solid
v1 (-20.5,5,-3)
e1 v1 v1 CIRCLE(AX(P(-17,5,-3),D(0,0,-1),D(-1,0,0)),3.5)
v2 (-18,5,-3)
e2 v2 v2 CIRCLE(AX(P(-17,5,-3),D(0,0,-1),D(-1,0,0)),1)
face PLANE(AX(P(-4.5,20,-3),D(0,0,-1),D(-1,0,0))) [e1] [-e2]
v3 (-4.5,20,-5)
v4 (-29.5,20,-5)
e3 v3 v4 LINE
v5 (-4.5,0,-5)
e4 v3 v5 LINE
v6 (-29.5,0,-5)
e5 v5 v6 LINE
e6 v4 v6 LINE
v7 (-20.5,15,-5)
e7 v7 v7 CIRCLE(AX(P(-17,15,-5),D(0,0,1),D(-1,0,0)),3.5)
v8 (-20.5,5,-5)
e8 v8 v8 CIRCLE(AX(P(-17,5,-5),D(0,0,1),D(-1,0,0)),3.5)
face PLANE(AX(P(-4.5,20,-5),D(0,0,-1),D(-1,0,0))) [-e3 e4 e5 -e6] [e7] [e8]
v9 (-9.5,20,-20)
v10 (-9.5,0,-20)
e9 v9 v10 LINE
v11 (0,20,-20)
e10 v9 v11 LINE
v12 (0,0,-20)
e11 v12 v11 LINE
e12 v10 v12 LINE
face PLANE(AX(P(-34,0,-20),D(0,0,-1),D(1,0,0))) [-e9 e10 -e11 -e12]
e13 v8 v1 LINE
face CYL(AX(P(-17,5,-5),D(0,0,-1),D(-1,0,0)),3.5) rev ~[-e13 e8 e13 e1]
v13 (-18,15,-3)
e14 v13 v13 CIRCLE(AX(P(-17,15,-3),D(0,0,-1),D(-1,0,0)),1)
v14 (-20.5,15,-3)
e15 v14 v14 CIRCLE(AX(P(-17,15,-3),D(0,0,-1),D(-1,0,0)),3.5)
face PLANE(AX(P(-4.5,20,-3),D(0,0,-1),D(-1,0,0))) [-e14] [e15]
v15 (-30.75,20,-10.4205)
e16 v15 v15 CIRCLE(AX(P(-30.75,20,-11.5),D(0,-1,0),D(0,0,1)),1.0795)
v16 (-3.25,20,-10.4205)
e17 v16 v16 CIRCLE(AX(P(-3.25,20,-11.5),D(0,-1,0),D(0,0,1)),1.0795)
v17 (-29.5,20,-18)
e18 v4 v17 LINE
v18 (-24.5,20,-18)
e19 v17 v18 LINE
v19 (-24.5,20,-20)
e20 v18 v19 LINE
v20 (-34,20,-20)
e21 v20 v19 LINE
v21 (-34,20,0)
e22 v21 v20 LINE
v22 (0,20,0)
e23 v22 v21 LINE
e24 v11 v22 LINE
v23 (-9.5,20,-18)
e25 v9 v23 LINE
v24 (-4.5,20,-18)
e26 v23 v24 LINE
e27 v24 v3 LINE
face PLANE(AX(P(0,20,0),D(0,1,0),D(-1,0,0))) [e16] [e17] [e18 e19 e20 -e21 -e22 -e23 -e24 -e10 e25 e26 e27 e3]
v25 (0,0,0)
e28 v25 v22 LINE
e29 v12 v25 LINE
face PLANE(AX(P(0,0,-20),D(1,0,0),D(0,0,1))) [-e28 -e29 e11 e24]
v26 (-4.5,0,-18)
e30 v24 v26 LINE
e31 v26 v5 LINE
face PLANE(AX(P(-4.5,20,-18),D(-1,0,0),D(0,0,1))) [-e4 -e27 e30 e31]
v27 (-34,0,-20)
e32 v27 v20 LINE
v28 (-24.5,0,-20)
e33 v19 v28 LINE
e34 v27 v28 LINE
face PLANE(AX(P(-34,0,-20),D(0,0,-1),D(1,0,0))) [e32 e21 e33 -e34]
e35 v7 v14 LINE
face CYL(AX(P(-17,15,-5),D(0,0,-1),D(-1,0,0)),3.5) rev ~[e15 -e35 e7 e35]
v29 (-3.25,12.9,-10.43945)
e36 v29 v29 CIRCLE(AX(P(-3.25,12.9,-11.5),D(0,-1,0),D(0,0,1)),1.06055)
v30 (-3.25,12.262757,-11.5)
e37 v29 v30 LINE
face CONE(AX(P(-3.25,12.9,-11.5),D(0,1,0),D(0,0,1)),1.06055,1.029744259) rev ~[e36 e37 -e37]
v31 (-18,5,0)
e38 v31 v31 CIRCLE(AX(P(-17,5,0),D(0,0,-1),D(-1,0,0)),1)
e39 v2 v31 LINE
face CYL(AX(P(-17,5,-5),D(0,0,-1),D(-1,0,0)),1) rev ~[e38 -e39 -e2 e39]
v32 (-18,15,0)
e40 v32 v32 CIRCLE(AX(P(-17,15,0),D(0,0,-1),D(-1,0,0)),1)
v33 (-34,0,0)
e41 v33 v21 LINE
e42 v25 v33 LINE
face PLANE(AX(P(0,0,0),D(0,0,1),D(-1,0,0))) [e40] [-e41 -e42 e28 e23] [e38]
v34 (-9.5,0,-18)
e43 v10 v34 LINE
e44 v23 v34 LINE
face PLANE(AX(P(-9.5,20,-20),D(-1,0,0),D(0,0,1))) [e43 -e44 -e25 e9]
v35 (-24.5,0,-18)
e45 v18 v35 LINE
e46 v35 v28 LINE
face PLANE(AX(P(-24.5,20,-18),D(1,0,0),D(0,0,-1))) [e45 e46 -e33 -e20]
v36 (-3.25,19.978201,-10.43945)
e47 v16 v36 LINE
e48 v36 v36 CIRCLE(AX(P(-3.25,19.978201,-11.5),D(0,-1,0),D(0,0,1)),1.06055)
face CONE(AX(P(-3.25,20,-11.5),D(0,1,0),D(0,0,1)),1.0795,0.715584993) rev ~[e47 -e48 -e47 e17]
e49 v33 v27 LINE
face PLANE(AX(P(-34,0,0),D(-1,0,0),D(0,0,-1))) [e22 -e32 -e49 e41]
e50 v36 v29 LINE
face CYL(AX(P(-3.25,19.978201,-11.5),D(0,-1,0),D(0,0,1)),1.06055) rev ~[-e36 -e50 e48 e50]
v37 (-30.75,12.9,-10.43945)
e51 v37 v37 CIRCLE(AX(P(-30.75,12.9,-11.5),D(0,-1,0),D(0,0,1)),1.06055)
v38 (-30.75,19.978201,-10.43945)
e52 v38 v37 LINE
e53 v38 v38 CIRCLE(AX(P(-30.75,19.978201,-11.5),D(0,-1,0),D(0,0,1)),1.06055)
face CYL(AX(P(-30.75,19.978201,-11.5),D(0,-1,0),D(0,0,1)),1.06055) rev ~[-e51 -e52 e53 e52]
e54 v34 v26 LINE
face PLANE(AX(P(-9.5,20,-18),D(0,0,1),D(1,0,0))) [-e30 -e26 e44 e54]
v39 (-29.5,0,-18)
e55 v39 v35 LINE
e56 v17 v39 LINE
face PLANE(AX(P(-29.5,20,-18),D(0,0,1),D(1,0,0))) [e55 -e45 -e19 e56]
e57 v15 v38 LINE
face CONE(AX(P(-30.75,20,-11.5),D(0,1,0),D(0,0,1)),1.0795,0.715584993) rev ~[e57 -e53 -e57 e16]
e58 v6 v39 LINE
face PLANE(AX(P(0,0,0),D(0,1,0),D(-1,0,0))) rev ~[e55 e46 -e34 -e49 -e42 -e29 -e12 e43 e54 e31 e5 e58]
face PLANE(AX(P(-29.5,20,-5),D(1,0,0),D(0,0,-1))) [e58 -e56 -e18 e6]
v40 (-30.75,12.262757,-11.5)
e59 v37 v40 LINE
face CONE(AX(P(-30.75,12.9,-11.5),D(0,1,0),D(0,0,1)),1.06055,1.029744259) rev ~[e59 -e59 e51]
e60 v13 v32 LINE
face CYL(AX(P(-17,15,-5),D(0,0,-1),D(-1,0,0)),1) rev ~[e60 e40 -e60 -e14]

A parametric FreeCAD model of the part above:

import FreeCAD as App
import Part
import Sketcher
from FreeCAD import Vector

doc = App.newDocument("Part")
body = doc.addObject("PartDesign::Body", "Body")

# Sketch on XZ plane
sketch1 = doc.addObject("Sketcher::SketchObject", "Sketch")
body.addObject(sketch1)
sketch1.AttachmentSupport = (doc.XZ_Plane, [""])
sketch1.MapMode = "FlatFace"
sketch1.addGeometry(Part.LineSegment(Vector(-34, 0, 0), Vector(0, 0, 0)), False)
sketch1.addGeometry(Part.LineSegment(Vector(0, 0, 0), Vector(0, -20, 0)), False)
sketch1.addGeometry(Part.LineSegment(Vector(0, -20, 0), Vector(-34, -20, 0)), False)
sketch1.addGeometry(Part.LineSegment(Vector(-34, -20, 0), Vector(-34, 0, 0)), False)
sketch1.addConstraint(Sketcher.Constraint("Coincident", 0, 2, 1, 1))
sketch1.addConstraint(Sketcher.Constraint("Coincident", 1, 2, 2, 1))
sketch1.addConstraint(Sketcher.Constraint("Coincident", 2, 2, 3, 1))
sketch1.addConstraint(Sketcher.Constraint("Coincident", 3, 2, 0, 1))
sketch1.addConstraint(Sketcher.Constraint("Horizontal", 0))
sketch1.addConstraint(Sketcher.Constraint("Vertical", 1))
sketch1.addConstraint(Sketcher.Constraint("Horizontal", 2))
sketch1.addConstraint(Sketcher.Constraint("Vertical", 3))
sketch1.addConstraint(Sketcher.Constraint("Coincident", 0, 2, -1, 1))
sketch1.addConstraint(Sketcher.Constraint("DistanceX", 0, 1, 0, 2, 34.0))
sketch1.addConstraint(Sketcher.Constraint("DistanceY", 1, 2, 1, 1, 20.0))
pad1 = doc.addObject("PartDesign::Pad", "Pad")
body.addObject(pad1)
pad1.Profile = sketch1
pad1.Length = 20
pad1.Reversed = True

# Sketch on XZ plane
sketch2 = doc.addObject("Sketcher::SketchObject", "Sketch001")
body.addObject(sketch2)
sketch2.AttachmentSupport = (doc.XZ_Plane, [""])
sketch2.MapMode = "FlatFace"
sketch2.AttachmentOffset = App.Placement(Vector(0, 0, -20), App.Rotation())
sketch2.addGeometry(Part.LineSegment(Vector(-24.5, -18, 0), Vector(-29.5, -18, 0)), False)
sketch2.addGeometry(Part.LineSegment(Vector(-29.5, -18, 0), Vector(-29.5, -5, 0)), False)
sketch2.addGeometry(Part.LineSegment(Vector(-29.5, -5, 0), Vector(-4.5, -5, 0)), False)
sketch2.addGeometry(Part.LineSegment(Vector(-4.5, -5, 0), Vector(-4.5, -18, 0)), False)
sketch2.addGeometry(Part.LineSegment(Vector(-4.5, -18, 0), Vector(-9.5, -18, 0)), False)
sketch2.addGeometry(Part.LineSegment(Vector(-9.5, -18, 0), Vector(-9.5, -20, 0)), False)
sketch2.addGeometry(Part.LineSegment(Vector(-9.5, -20, 0), Vector(-24.5, -20, 0)), False)
sketch2.addGeometry(Part.LineSegment(Vector(-24.5, -20, 0), Vector(-24.5, -18, 0)), False)
sketch2.addConstraint(Sketcher.Constraint("Coincident", 0, 2, 1, 1))
sketch2.addConstraint(Sketcher.Constraint("Coincident", 1, 2, 2, 1))
sketch2.addConstraint(Sketcher.Constraint("Coincident", 2, 2, 3, 1))
sketch2.addConstraint(Sketcher.Constraint("Coincident", 3, 2, 4, 1))
sketch2.addConstraint(Sketcher.Constraint("Coincident", 4, 2, 5, 1))
sketch2.addConstraint(Sketcher.Constraint("Coincident", 5, 2, 6, 1))
sketch2.addConstraint(Sketcher.Constraint("Coincident", 6, 2, 7, 1))
sketch2.addConstraint(Sketcher.Constraint("Coincident", 7, 2, 0, 1))
sketch2.addConstraint(Sketcher.Constraint("Horizontal", 0))
sketch2.addConstraint(Sketcher.Constraint("Vertical", 1))
sketch2.addConstraint(Sketcher.Constraint("Horizontal", 2))
sketch2.addConstraint(Sketcher.Constraint("Vertical", 3))
sketch2.addConstraint(Sketcher.Constraint("Horizontal", 4))
sketch2.addConstraint(Sketcher.Constraint("Vertical", 5))
sketch2.addConstraint(Sketcher.Constraint("Horizontal", 6))
sketch2.addConstraint(Sketcher.Constraint("Vertical", 7))
sketch2.addConstraint(Sketcher.Constraint("Horizontal", 0, 2, 3, 2))
sketch2.addConstraint(Sketcher.Constraint("Equal", 0, 4))
sketch2.addConstraint(Sketcher.Constraint("DistanceX", 0, 2, 0, 1, 5.0))
sketch2.addConstraint(Sketcher.Constraint("DistanceX", 2, 1, 2, 2, 25.0))
sketch2.addConstraint(Sketcher.Constraint("DistanceY", 1, 1, 1, 2, 13.0))
sketch2.addConstraint(Sketcher.Constraint("DistanceY", 5, 2, 5, 1, 2.0))
sketch2.addConstraint(Sketcher.Constraint("DistanceY", 1, 2, -1, 1, 5.0))
sketch2.addConstraint(Sketcher.Constraint("DistanceX", 2, 2, -1, 1, 4.5))
pocket1 = doc.addObject("PartDesign::Pocket", "Pocket")
body.addObject(pocket1)
pocket1.Profile = sketch2
pocket1.Length = 33
pocket1.Reversed = True

# Sketch on XY plane
sketch3 = doc.addObject("Sketcher::SketchObject", "Sketch002")
body.addObject(sketch3)
sketch3.AttachmentSupport = (doc.XY_Plane, [""])
sketch3.MapMode = "FlatFace"
sketch3.AttachmentOffset = App.Placement(Vector(0, 0, -5), App.Rotation())
sketch3.addGeometry(Part.Circle(Vector(-17, 15, 0), Vector(0, 0, 1), 1), False)
sketch3.addGeometry(Part.Circle(Vector(-17, 5, 0), Vector(0, 0, 1), 1), False)
sketch3.addConstraint(Sketcher.Constraint("Equal", 0, 1))
sketch3.addConstraint(Sketcher.Constraint("Vertical", 0, 3, 1, 3))
sketch3.addConstraint(Sketcher.Constraint("Diameter", 0, 2.0))
sketch3.addConstraint(Sketcher.Constraint("DistanceY", -1, 1, 1, 3, 5.0))
sketch3.addConstraint(Sketcher.Constraint("DistanceY", 1, 3, 0, 3, 10.0))
sketch3.addConstraint(Sketcher.Constraint("DistanceX", 0, 3, -1, 1, 17.0))
pocket2 = doc.addObject("PartDesign::Pocket", "Pocket001")
body.addObject(pocket2)
pocket2.Profile = sketch3
pocket2.Type = "ThroughAll"
pocket2.Reversed = True

# Sketch on XZ plane
sketch4 = doc.addObject("Sketcher::SketchObject", "Sketch003")
body.addObject(sketch4)
sketch4.AttachmentSupport = (doc.XZ_Plane, [""])
sketch4.MapMode = "FlatFace"
sketch4.AttachmentOffset = App.Placement(Vector(0, 0, -20), App.Rotation())
sketch4.addGeometry(Part.Circle(Vector(-30.8, -11.5, 0), Vector(0, 0, 1), 1.1), False)
sketch4.addGeometry(Part.Circle(Vector(-3.2, -11.5, 0), Vector(0, 0, 1), 1.1), False)
sketch4.addConstraint(Sketcher.Constraint("Equal", 0, 1))
sketch4.addConstraint(Sketcher.Constraint("Horizontal", 0, 3, 1, 3))
sketch4.addConstraint(Sketcher.Constraint("Diameter", 0, 2.121))
sketch4.addConstraint(Sketcher.Constraint("DistanceY", 0, 3, -1, 1, 11.5))
sketch4.addConstraint(Sketcher.Constraint("DistanceX", 0, 3, 1, 3, 27.5))
sketch4.addConstraint(Sketcher.Constraint("DistanceX", 0, 3, -1, 1, 30.75))
doc.recompute()
hole = doc.addObject("PartDesign::Hole", "Hole")
body.addObject(hole)
hole.Profile = sketch4
hole.ThreadType = "None"
hole.Diameter = 2.1211
hole.DepthType = "Dimension"
hole.Depth = 7.1
hole.DrillPoint = "Angled"
hole.DrillPointAngle = 118
hole.HoleCutType = "Countersink"
hole.HoleCutDiameter = 2.159
hole.HoleCutCountersinkAngle = 82
hole.Reversed = True

# Sketch on XY plane
sketch5 = doc.addObject("Sketcher::SketchObject", "Sketch004")
body.addObject(sketch5)
sketch5.AttachmentSupport = (doc.XY_Plane, [""])
sketch5.MapMode = "FlatFace"
sketch5.AttachmentOffset = App.Placement(Vector(0, 0, -5), App.Rotation())
sketch5.addGeometry(Part.Circle(Vector(-17, 15, 0), Vector(0, 0, 1), 3.5), False)
sketch5.addGeometry(Part.Circle(Vector(-17, 15, 0), Vector(0, 0, 1), 1), False)
sketch5.addGeometry(Part.Circle(Vector(-17, 5, 0), Vector(0, 0, 1), 3.5), False)
sketch5.addGeometry(Part.Circle(Vector(-17, 5, 0), Vector(0, 0, 1), 1), False)
sketch5.addConstraint(Sketcher.Constraint("Coincident", 1, 3, 0, 3))
sketch5.addConstraint(Sketcher.Constraint("Coincident", 3, 3, 2, 3))
sketch5.addConstraint(Sketcher.Constraint("Equal", 0, 2))
sketch5.addConstraint(Sketcher.Constraint("Equal", 1, 3))
sketch5.addConstraint(Sketcher.Constraint("Vertical", 1, 3, 2, 3))
sketch5.addConstraint(Sketcher.Constraint("Diameter", 0, 7.0))
sketch5.addConstraint(Sketcher.Constraint("Diameter", 1, 2.0))
sketch5.addConstraint(Sketcher.Constraint("DistanceY", -1, 1, 2, 3, 5.0))
sketch5.addConstraint(Sketcher.Constraint("DistanceY", 2, 3, 0, 3, 10.0))
sketch5.addConstraint(Sketcher.Constraint("DistanceX", 0, 3, -1, 1, 17.0))
pocket3 = doc.addObject("PartDesign::Pocket", "Pocket002")
body.addObject(pocket3)
pocket3.Profile = sketch5
pocket3.Length = 2
pocket3.Reversed = True

doc.recompute()
